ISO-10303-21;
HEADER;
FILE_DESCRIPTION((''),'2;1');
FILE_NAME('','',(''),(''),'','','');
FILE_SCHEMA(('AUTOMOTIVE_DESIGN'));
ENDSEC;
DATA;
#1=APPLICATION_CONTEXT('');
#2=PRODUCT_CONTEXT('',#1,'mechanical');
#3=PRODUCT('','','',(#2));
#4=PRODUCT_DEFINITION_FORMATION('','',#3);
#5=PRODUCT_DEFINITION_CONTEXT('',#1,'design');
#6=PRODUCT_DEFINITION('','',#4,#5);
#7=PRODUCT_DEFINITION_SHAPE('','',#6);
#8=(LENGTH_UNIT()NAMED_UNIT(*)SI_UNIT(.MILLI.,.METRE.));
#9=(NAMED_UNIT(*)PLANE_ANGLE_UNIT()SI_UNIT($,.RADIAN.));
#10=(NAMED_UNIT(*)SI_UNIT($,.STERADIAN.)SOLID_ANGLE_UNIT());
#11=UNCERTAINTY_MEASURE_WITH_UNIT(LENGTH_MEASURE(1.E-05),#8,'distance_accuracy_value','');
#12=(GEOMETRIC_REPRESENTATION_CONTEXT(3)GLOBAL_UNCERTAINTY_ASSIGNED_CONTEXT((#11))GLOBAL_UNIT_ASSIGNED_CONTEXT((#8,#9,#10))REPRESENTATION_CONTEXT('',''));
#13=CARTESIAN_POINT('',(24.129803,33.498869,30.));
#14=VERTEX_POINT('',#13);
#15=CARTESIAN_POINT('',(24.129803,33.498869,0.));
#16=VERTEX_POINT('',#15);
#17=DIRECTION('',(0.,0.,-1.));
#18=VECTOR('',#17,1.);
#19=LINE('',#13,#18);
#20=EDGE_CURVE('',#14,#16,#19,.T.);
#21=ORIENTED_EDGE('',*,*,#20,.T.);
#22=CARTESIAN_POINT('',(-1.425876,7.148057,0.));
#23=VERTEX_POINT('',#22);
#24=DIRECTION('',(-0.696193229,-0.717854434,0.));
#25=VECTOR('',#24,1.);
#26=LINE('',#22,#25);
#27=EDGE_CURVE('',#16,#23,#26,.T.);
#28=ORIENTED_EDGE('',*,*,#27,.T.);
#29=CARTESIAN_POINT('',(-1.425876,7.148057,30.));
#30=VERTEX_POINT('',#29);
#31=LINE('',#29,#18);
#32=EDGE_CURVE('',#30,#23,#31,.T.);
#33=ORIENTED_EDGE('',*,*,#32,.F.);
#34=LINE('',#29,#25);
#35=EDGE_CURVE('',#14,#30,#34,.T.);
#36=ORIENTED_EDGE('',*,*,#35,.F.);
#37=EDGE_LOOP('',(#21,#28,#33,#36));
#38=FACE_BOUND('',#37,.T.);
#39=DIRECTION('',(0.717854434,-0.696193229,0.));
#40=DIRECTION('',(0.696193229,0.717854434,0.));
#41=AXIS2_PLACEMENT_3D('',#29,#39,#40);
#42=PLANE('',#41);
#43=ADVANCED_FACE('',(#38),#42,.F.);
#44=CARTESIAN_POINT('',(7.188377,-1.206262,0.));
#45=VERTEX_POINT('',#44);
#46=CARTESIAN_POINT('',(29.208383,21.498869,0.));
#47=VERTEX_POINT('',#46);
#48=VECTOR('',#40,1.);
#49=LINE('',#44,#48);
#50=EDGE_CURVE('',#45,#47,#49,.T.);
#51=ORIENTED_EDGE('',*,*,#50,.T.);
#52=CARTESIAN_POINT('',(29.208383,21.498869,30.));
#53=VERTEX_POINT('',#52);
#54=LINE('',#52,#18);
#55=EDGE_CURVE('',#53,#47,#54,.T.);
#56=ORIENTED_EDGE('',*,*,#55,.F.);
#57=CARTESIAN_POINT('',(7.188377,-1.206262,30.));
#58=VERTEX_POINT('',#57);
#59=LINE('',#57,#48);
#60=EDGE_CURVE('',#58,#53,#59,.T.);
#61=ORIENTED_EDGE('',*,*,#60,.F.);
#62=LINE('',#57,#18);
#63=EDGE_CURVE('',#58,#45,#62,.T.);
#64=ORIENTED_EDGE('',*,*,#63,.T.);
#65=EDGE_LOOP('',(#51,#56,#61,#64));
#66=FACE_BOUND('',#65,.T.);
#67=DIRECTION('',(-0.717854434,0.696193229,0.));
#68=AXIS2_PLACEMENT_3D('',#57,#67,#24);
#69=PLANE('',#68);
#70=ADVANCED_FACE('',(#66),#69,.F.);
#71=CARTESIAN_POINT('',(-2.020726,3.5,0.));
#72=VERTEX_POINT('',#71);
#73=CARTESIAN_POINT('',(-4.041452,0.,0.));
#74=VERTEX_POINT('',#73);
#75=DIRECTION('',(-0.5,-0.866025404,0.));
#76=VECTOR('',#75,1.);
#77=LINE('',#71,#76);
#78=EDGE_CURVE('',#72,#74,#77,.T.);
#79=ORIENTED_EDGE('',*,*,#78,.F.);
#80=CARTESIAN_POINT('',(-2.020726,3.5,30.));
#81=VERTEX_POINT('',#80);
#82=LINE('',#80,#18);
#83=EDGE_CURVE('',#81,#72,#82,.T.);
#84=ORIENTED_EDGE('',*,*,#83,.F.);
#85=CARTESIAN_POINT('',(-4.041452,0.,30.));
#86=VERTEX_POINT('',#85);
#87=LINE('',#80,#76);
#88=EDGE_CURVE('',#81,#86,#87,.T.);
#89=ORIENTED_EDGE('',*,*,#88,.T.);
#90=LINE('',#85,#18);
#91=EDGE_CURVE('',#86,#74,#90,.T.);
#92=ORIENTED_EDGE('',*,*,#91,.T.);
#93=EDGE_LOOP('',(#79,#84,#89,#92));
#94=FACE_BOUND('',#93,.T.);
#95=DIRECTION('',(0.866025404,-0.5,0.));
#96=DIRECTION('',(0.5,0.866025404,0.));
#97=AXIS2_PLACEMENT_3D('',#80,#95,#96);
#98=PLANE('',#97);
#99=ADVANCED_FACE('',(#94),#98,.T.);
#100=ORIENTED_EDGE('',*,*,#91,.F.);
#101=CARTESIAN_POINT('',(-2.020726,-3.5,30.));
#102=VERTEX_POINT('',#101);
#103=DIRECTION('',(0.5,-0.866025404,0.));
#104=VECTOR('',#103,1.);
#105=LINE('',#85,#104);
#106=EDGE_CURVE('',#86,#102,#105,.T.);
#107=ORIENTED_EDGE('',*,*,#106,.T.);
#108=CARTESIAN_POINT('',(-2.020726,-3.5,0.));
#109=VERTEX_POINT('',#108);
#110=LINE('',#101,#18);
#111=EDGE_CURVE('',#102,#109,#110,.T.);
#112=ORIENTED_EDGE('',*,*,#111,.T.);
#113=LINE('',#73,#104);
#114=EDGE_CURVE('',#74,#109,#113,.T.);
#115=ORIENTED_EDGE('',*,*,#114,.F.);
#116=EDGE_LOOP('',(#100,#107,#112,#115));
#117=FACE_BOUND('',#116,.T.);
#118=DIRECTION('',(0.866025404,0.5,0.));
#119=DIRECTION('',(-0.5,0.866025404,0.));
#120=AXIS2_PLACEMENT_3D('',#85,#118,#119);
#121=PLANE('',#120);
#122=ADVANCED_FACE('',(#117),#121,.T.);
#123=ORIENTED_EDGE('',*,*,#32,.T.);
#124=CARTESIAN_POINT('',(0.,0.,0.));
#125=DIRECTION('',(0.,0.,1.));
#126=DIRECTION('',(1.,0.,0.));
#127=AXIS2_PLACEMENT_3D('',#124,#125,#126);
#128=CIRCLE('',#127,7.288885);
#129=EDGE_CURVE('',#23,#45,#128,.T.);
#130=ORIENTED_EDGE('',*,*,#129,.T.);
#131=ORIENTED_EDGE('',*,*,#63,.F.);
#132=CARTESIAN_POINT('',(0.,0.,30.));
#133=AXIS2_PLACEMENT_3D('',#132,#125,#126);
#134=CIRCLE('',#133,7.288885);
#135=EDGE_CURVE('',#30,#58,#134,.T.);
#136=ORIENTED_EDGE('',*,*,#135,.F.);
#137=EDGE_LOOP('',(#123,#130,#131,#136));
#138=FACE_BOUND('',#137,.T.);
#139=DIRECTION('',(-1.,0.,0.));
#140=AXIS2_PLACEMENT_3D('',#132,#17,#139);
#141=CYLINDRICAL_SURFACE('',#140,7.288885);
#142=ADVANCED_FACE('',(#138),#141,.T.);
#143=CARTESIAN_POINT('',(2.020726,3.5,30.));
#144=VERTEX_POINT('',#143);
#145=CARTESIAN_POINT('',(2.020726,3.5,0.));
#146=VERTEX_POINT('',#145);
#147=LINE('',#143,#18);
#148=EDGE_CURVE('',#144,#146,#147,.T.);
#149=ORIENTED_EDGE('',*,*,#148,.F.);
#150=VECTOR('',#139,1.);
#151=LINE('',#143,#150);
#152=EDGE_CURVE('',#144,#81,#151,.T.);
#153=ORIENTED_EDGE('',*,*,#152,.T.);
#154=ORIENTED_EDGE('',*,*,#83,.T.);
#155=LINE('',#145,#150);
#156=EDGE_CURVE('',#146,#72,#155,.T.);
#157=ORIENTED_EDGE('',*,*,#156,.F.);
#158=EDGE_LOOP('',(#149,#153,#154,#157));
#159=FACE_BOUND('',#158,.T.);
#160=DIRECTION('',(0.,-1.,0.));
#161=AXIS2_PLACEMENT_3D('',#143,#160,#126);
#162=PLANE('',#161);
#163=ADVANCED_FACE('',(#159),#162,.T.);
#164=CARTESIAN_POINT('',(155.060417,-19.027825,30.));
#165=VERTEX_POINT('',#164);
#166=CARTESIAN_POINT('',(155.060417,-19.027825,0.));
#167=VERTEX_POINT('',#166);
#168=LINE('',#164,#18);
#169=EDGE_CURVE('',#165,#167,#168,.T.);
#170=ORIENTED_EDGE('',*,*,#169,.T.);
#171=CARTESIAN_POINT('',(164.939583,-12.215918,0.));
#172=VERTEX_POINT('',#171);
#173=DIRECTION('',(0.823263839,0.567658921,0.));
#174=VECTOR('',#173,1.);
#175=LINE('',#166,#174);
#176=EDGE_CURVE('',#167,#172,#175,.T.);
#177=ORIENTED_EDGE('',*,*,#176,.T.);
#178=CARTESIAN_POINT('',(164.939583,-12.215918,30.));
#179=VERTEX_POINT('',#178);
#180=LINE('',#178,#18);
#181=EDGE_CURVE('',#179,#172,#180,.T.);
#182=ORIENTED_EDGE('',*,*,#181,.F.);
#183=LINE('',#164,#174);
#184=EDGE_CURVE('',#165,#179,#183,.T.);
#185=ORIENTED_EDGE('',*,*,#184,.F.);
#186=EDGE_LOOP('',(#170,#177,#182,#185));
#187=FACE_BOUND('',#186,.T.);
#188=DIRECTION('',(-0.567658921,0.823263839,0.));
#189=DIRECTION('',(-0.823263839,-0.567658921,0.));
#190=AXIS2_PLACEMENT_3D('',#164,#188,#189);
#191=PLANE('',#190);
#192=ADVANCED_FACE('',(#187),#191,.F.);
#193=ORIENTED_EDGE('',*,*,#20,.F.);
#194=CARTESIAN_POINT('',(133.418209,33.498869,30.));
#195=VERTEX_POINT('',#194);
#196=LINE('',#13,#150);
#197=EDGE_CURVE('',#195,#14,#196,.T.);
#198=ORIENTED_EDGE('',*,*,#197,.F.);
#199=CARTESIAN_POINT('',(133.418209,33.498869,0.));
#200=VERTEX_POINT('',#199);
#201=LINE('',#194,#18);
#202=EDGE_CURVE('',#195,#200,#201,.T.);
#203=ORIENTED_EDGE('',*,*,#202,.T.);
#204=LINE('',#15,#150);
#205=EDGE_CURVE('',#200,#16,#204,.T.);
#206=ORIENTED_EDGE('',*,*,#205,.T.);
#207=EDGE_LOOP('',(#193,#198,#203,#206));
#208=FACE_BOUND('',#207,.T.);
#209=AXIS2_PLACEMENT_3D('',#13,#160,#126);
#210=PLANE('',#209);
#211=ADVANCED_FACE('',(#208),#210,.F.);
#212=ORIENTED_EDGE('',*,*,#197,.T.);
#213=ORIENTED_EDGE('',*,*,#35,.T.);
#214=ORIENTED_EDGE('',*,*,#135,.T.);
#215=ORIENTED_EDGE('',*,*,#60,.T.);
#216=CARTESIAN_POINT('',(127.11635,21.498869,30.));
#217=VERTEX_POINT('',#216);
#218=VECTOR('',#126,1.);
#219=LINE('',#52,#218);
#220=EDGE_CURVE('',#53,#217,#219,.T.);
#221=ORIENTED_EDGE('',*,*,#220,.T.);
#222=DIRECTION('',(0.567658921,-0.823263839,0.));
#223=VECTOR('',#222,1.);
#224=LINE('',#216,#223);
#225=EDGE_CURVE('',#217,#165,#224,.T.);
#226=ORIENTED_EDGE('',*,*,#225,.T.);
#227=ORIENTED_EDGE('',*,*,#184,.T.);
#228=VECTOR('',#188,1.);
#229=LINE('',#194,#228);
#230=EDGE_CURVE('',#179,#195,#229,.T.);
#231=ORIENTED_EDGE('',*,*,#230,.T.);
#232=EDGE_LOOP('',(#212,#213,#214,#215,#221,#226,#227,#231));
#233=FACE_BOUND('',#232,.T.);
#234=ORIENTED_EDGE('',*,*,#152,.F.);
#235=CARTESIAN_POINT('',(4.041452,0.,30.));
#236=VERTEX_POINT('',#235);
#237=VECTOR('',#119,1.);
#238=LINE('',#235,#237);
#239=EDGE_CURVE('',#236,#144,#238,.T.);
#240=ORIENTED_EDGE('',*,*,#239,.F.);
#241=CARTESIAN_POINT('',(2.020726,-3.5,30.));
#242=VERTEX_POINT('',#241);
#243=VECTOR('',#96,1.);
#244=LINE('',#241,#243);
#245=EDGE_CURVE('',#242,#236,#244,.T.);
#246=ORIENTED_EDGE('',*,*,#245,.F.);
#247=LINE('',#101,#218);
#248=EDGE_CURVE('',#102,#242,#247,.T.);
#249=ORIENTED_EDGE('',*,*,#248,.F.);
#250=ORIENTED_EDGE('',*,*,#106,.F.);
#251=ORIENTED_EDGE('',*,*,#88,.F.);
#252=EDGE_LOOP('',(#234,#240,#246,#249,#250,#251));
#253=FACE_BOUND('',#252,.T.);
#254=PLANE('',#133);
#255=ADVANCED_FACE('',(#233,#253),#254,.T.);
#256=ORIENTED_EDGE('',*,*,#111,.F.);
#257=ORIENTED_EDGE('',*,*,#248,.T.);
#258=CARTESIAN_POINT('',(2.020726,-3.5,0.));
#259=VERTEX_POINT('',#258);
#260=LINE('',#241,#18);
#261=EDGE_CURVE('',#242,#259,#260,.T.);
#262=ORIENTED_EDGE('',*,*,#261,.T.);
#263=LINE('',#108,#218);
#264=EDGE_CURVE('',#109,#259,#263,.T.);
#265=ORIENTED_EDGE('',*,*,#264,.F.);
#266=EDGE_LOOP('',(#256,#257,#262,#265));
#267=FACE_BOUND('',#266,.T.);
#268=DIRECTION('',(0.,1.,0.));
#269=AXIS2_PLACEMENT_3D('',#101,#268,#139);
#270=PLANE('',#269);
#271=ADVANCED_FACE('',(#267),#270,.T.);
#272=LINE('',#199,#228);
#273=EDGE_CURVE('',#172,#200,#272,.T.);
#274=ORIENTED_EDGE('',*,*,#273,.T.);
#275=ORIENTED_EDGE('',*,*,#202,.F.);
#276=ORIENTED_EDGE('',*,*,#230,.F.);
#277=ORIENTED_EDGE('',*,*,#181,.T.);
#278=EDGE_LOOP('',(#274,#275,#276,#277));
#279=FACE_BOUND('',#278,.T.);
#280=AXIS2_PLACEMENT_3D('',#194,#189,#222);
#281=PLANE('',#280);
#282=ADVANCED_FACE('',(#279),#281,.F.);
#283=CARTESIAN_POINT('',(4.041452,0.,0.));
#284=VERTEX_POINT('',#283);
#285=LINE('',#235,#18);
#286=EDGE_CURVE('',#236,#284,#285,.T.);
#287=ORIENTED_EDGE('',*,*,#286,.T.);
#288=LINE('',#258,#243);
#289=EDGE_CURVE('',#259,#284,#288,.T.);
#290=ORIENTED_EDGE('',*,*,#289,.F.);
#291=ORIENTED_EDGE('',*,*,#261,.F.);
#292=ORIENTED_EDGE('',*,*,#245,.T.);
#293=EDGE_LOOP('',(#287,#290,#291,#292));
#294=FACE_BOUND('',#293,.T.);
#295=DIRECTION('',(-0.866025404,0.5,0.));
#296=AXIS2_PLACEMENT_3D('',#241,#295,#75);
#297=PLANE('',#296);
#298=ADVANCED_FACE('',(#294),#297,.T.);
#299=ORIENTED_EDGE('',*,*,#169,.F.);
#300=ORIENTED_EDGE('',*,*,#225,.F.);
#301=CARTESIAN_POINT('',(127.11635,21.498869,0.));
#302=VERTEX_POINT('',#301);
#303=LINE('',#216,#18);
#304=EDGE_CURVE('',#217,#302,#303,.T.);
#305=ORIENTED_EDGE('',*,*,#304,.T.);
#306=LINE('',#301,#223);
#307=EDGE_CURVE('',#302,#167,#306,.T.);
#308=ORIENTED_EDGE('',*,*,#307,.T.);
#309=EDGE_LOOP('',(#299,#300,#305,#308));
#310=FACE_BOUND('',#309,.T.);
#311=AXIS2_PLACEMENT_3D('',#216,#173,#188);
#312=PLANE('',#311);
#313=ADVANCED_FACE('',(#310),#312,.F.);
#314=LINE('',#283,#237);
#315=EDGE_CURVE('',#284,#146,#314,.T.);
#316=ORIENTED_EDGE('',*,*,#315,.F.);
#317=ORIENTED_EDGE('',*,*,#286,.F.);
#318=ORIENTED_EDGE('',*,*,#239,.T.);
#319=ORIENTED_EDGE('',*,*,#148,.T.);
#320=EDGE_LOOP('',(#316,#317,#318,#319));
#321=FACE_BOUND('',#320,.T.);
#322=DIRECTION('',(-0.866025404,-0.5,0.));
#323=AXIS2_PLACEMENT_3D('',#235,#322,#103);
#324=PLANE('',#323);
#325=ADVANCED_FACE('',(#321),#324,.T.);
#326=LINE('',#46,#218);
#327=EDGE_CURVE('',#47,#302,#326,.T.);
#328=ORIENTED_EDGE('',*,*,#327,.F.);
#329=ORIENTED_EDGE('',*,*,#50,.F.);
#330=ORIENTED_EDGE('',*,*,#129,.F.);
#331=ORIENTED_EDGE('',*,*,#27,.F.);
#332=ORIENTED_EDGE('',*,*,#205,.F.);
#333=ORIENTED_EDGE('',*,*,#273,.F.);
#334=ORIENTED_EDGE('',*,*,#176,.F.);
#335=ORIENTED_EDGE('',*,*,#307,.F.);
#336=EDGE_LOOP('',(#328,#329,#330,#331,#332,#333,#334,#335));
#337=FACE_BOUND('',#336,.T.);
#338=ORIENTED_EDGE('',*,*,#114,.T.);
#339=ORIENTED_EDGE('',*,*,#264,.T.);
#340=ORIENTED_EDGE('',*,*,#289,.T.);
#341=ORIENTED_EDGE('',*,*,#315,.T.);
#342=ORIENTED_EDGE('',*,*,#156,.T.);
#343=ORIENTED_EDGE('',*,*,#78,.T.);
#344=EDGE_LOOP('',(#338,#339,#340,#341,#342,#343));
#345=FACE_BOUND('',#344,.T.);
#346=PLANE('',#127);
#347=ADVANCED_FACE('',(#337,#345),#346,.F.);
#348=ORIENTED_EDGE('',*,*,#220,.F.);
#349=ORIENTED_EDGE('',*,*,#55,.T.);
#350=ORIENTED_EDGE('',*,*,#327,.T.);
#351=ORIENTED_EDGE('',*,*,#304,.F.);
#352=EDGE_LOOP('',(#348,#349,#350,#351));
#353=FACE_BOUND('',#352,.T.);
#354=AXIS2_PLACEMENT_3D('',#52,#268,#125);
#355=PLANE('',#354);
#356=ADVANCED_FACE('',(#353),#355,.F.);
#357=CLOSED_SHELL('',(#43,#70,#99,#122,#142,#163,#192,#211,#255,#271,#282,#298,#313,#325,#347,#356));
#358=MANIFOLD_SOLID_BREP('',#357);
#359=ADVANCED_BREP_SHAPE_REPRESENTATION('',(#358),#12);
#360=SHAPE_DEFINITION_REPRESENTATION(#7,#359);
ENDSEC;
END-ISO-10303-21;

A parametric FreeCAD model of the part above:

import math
import FreeCAD as App
import Part
import Sketcher

V = App.Vector
Q = App.Units.Quantity


def add_polygon(sketch, points):
    """Adds a closed chain of lines whose ends are joined by coincident constraints."""
    first, n = sketch.GeometryCount, len(points)
    for a, b in zip(points, points[1:] + points[:1]):
        sketch.addGeometry(Part.LineSegment(App.Vector(*a, 0), App.Vector(*b, 0)), False)
    for i in range(n):
        sketch.addConstraint(Sketcher.Constraint("Coincident", first + i, 2, first + (i + 1) % n, 1))

doc = App.newDocument("Part")
params = doc.addObject("Spreadsheet::Sheet", "Params")
for row, (alias, value) in enumerate([
    ("sketch1_length", "12 mm"),
    ("pad1_length", "30 mm"),
], start=1):
    params.set(f"A{row}", alias)
    params.set(f"B{row}", "=" + value)
    params.setAlias(f"B{row}", alias)

body = doc.addObject("PartDesign::Body", "Body")

# Sketch on XY plane
sketch1 = doc.addObject("Sketcher::SketchObject", "Sketch")
body.addObject(sketch1)
sketch1.AttachmentSupport = (doc.XY_Plane, [""])
sketch1.MapMode = "FlatFace"
sketch1.addGeometry(Part.LineSegment(V(7.188377, -1.206262, 0), V(29.208383, 21.498869, 0)), False)  # 0
sketch1.addGeometry(Part.LineSegment(V(29.208383, 21.498869, 0), V(127.11635, 21.498869, 0)), False)  # 1
sketch1.addGeometry(Part.LineSegment(V(127.11635, 21.498869, 0), V(155.060417, -19.027825, 0)), False)  # 2
sketch1.addGeometry(Part.LineSegment(V(155.060417, -19.027825, 0), V(164.939583, -12.215918, 0)), False)  # 3
sketch1.addGeometry(Part.LineSegment(V(164.939583, -12.215918, 0), V(133.418209, 33.498869, 0)), False)  # 4
sketch1.addGeometry(Part.LineSegment(V(133.418209, 33.498869, 0), V(24.129803, 33.498869, 0)), False)  # 5
sketch1.addGeometry(Part.LineSegment(V(24.129803, 33.498869, 0), V(-1.425876, 7.148057, 0)), False)  # 6
sketch1.addGeometry(Part.ArcOfCircle(Part.Circle(V(0, 0, 0), V(0, 0, 1), 7.288885), math.radians(101.281138), math.radians(350.474105)), False)  # 7
add_polygon(sketch1, [(2.020726, 3.5), (4.041452, 0), (2.020726, -3.5), (-2.020726, -3.5), (-4.041452, 0), (-2.020726, 3.5)])  # lines 8-13
sketch1.addConstraint(Sketcher.Constraint("Coincident", 0, 2, 1, 1))
sketch1.addConstraint(Sketcher.Constraint("Coincident", 1, 2, 2, 1))
sketch1.addConstraint(Sketcher.Constraint("Coincident", 2, 2, 3, 1))
sketch1.addConstraint(Sketcher.Constraint("Coincident", 3, 2, 4, 1))
sketch1.addConstraint(Sketcher.Constraint("Coincident", 4, 2, 5, 1))
sketch1.addConstraint(Sketcher.Constraint("Coincident", 5, 2, 6, 1))
sketch1.addConstraint(Sketcher.Constraint("Coincident", 6, 2, 7, 1))
sketch1.addConstraint(Sketcher.Constraint("Coincident", 7, 2, 0, 1))
sketch1.addConstraint(Sketcher.Constraint("Horizontal", 1))
sketch1.addConstraint(Sketcher.Constraint("Horizontal", 5))
sketch1.addConstraint(Sketcher.Constraint("Horizontal", 10))
sketch1.addConstraint(Sketcher.Constraint("Horizontal", 13))
sketch1.addConstraint(Sketcher.Constraint("Coincident", 7, 3, -1, 1))
sketch1.addConstraint(Sketcher.Constraint("Symmetric", 8, 2, 11, 2, -1, 1))
sketch1.addConstraint(Sketcher.Constraint("Symmetric", 9, 2, 12, 2, -1, 1))
sketch1.addConstraint(Sketcher.Constraint("PointOnObject", 8, 2, -1))
sketch1.addConstraint(Sketcher.Constraint("Perpendicular", 2, 3))
sketch1.addConstraint(Sketcher.Constraint("Perpendicular", 3, 4))
sketch1.addConstraint(Sketcher.Constraint("Parallel", 0, 6))
sketch1.addConstraint(Sketcher.Constraint("Parallel", 8, 11))
sketch1.addConstraint(Sketcher.Constraint("Vertical", 10, 2, 12, 2))
sketch1.addConstraint(Sketcher.Constraint("Angle", 8, Q("-60 deg")))
sketch1.addConstraint(Sketcher.Constraint("Distance", 3, Q("12 mm")))
sketch1.addConstraint(Sketcher.Constraint("DistanceY", 1, 2, 4, 2, Q("12 mm")))
sketch1.addConstraint(Sketcher.Constraint("DistanceY", 10, 2, 12, 2, Q("7 mm")))
sketch1.addConstraint(Sketcher.Constraint("Radius", 7, Q("7.288885 mm")))
sketch1.addConstraint(Sketcher.Constraint("DistanceX", 10, 2, 10, 1, Q("4.041452 mm")))
sketch1.addConstraint(Sketcher.Constraint("DistanceX", 0, 2, 3, 2, Q("135.7312 mm")))
sketch1.addConstraint(Sketcher.Constraint("DistanceX", 6, 2, 9, 2, Q("3.446602 mm")))
sketch1.addConstraint(Sketcher.Constraint("Distance", 2, Q("49.226861 mm")))
sketch1.addConstraint(Sketcher.Constraint("Distance", 4, Q("55.52872 mm")))
sketch1.addConstraint(Sketcher.Constraint("DistanceX", 5, 2, 5, 1, Q("109.288407 mm")))
sketch1.addConstraint(Sketcher.Constraint("DistanceY", -1, 1, 0, 2, Q("21.498869 mm")))
sketch1.addConstraint(Sketcher.Constraint("DistanceX", -1, 1, 1, 2, Q("127.11635 mm")))
sketch1.setExpression("Constraints[28]", "Params.sketch1_length")
pad1 = doc.addObject("PartDesign::Pad", "Pad")
body.addObject(pad1)
pad1.Profile = sketch1
pad1.setExpression("Length", "Params.pad1_length")

doc.recompute()
